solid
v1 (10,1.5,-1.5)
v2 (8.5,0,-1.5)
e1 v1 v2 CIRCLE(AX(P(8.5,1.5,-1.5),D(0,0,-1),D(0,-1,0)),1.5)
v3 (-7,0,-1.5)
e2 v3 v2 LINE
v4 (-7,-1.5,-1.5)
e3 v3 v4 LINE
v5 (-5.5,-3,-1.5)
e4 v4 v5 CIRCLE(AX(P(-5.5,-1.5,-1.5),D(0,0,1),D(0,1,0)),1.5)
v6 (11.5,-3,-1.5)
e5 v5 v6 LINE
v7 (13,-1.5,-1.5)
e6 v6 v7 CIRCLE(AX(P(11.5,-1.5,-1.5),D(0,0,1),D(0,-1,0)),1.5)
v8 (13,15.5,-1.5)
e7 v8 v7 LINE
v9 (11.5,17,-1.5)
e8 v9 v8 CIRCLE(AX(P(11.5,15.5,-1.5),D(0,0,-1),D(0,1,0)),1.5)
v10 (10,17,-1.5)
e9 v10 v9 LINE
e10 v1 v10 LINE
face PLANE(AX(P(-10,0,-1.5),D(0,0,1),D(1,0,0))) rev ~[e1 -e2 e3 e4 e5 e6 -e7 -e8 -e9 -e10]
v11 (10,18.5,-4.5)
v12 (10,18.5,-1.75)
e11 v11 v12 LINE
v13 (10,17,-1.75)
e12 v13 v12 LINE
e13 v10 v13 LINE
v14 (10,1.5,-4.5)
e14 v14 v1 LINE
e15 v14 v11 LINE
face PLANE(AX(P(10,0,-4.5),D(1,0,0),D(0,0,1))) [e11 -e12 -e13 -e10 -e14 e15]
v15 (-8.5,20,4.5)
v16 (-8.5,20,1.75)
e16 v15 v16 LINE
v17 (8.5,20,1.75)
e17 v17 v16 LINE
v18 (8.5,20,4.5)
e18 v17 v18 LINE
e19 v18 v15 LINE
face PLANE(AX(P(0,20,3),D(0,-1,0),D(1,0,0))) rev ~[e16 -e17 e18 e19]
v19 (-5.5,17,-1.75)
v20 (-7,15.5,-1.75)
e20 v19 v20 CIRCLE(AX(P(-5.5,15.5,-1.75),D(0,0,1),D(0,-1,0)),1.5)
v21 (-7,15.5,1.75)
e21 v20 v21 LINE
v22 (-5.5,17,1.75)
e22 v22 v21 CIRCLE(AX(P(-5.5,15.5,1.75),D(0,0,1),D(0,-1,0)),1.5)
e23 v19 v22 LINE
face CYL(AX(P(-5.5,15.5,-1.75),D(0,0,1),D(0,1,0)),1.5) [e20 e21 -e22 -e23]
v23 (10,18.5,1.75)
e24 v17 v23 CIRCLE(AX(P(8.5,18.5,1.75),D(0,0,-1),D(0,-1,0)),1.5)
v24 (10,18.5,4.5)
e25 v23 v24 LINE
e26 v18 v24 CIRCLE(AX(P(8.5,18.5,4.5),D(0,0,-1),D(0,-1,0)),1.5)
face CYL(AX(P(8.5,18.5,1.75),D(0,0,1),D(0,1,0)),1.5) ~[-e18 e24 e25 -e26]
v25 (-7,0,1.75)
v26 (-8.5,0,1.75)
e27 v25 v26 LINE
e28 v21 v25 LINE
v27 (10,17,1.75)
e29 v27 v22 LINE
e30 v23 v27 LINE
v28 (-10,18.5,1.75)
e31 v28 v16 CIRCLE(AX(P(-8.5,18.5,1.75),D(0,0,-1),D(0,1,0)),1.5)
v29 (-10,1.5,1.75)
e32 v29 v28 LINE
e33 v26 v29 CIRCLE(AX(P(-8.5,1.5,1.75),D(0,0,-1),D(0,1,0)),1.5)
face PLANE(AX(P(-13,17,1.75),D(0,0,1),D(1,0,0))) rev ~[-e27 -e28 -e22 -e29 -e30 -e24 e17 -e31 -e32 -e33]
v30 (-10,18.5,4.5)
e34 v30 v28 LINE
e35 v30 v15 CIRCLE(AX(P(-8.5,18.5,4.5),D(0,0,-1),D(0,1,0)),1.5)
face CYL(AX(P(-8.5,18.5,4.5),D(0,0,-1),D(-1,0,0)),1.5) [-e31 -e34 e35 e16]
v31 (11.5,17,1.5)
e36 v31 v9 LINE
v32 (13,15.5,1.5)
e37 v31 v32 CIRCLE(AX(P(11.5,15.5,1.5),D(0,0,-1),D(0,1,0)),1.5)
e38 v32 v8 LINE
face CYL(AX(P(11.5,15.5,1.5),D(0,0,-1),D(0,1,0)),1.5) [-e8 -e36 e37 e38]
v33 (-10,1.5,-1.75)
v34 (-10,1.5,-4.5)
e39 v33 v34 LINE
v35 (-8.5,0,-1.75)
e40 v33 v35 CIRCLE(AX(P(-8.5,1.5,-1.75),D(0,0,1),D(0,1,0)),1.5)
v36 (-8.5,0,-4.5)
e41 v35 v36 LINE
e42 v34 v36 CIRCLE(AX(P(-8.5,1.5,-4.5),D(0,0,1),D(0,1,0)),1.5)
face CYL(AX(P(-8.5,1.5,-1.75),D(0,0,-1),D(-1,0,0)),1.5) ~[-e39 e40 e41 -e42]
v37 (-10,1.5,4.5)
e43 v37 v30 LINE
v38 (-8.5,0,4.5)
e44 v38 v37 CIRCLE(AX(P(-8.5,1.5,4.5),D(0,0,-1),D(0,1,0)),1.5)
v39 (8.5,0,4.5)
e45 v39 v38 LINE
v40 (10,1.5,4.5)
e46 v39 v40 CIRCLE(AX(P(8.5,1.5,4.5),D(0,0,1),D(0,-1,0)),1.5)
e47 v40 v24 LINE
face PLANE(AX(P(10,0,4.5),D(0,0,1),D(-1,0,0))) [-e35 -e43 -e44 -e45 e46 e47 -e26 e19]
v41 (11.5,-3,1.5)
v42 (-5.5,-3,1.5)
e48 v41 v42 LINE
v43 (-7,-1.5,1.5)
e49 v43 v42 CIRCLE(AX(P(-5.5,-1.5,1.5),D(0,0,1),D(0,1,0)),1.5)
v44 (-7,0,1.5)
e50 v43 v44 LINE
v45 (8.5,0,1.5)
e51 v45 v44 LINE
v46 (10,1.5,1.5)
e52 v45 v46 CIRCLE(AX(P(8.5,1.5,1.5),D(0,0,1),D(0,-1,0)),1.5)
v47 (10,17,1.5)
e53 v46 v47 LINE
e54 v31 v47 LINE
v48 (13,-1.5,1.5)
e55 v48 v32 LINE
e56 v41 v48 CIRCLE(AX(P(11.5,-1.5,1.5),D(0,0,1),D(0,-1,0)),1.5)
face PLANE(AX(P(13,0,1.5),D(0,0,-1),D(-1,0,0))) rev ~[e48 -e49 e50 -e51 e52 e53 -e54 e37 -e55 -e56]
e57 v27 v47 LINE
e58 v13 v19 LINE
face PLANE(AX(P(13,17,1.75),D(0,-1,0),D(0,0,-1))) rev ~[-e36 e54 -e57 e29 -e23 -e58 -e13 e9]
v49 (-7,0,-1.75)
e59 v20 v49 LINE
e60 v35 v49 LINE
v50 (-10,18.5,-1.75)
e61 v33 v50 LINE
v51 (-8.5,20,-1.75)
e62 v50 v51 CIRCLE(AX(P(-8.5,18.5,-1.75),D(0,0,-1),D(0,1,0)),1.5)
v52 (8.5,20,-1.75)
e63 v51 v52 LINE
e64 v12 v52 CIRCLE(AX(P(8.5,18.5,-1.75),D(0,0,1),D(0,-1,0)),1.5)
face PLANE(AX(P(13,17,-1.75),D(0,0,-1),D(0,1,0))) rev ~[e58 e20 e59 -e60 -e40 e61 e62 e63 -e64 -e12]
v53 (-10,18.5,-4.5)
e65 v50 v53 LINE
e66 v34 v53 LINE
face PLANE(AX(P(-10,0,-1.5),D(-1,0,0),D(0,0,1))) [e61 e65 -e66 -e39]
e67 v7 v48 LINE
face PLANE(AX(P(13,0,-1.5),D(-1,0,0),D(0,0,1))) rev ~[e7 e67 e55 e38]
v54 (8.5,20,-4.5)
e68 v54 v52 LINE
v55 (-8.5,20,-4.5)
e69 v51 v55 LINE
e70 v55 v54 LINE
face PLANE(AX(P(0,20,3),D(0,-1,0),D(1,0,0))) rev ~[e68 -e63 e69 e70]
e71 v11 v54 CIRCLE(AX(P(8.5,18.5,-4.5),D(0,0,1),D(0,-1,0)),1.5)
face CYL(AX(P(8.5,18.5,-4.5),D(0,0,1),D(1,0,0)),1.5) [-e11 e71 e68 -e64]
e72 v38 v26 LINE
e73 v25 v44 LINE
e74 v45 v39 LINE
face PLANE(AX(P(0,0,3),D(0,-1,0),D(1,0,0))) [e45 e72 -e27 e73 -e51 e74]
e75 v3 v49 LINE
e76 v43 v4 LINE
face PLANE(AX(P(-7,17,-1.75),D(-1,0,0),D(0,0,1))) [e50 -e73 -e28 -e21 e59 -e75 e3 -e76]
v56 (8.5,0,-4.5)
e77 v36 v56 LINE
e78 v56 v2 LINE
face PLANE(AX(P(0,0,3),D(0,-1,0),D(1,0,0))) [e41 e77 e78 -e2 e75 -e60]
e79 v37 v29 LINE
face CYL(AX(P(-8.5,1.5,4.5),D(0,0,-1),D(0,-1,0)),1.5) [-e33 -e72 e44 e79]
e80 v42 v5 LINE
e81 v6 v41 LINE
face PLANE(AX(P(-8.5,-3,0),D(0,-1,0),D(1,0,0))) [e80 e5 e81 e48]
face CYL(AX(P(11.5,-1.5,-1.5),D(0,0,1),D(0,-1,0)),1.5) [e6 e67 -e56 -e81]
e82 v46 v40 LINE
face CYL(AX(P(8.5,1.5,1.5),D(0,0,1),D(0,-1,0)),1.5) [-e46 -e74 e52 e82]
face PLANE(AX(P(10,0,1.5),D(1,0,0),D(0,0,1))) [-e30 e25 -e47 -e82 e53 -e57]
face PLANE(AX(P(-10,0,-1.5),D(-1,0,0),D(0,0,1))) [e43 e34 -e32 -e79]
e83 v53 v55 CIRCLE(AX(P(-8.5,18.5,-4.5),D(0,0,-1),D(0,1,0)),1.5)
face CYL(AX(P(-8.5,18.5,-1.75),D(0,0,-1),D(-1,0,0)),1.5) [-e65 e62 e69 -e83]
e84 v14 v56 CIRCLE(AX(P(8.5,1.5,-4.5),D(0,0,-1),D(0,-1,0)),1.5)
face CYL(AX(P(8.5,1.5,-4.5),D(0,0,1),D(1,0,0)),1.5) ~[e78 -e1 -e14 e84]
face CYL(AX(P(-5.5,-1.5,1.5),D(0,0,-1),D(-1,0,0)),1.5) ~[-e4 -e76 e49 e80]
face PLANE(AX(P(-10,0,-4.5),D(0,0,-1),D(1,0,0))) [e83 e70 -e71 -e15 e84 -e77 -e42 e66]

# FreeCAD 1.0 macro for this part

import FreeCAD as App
import Part
import Sketcher
from FreeCAD import Vector


def edges_at(feature, points):
    """Names of the edges that pass closest to the given points."""
    edges = feature.Shape.Edges
    near = lambda p: min(range(len(edges)), key=lambda i: edges[i].distToShape(Part.Vertex(*p))[0])
    return sorted({f"Edge{near(p) + 1}" for p in points})


def add_polygon(sketch, points):
    """Adds a closed chain of lines whose ends are joined by coincident constraints."""
    first, n = sketch.GeometryCount, len(points)
    for a, b in zip(points, points[1:] + points[:1]):
        sketch.addGeometry(Part.LineSegment(App.Vector(*a, 0), App.Vector(*b, 0)), False)
    for i in range(n):
        sketch.addConstraint(Sketcher.Constraint("Coincident", first + i, 2, first + (i + 1) % n, 1))

doc = App.newDocument("Part")
body = doc.addObject("PartDesign::Body", "Body")

# Sketch on XZ plane
sketch1 = body.newObject("Sketcher::SketchObject", "Sketch")
sketch1.AttachmentSupport = (doc.getObject("XZ_Plane"), [""])
sketch1.MapMode = "FlatFace"
add_polygon(sketch1, [(10, 1.5), (10, 4.5), (-10, 4.5), (-10, -4.5), (10, -4.5), (10, -1.5), (13, -1.5), (13, 1.5)])  # lines 0-7
sketch1.addConstraint(Sketcher.Constraint("Vertical", 0))
sketch1.addConstraint(Sketcher.Constraint("Horizontal", 1))
sketch1.addConstraint(Sketcher.Constraint("Vertical", 2))
sketch1.addConstraint(Sketcher.Constraint("Horizontal", 3))
sketch1.addConstraint(Sketcher.Constraint("Vertical", 4))
sketch1.addConstraint(Sketcher.Constraint("Horizontal", 5))
sketch1.addConstraint(Sketcher.Constraint("Vertical", 6))
sketch1.addConstraint(Sketcher.Constraint("Horizontal", 7))
sketch1.addConstraint(Sketcher.Constraint("Symmetric", 0, 2, 2, 2, -1, 1))
sketch1.addConstraint(Sketcher.Constraint("Symmetric", 4, 2, 7, 2, -1))
sketch1.addConstraint(Sketcher.Constraint("Equal", 7, 0))
sketch1.addConstraint(Sketcher.Constraint("Equal", 4, 6))
sketch1.addConstraint(Sketcher.Constraint("DistanceX", 1, 2, 1, 1, 20.0))
sketch1.addConstraint(Sketcher.Constraint("DistanceX", 5, 1, 5, 2, 3.0))
pad1 = body.newObject("PartDesign::Pad", "Pad")
pad1.Profile = sketch1
pad1.Length = 20
pad1.Reversed = True

# Sketch on XZ plane
sketch2 = body.newObject("Sketcher::SketchObject", "Sketch001")
sketch2.AttachmentSupport = (doc.getObject("XZ_Plane"), [""])
sketch2.MapMode = "FlatFace"
add_polygon(sketch2, [(-10, 1.5), (-10, -1.5), (13, -1.5), (13, 1.5)])  # lines 0-3
sketch2.addConstraint(Sketcher.Constraint("Vertical", 0))
sketch2.addConstraint(Sketcher.Constraint("Horizontal", 1))
sketch2.addConstraint(Sketcher.Constraint("Vertical", 2))
sketch2.addConstraint(Sketcher.Constraint("Horizontal", 3))
sketch2.addConstraint(Sketcher.Constraint("DistanceX", 1, 1, 1, 2, 23.0))
sketch2.addConstraint(Sketcher.Constraint("DistanceY", 0, 2, 0, 1, 3.0))
sketch2.addConstraint(Sketcher.Constraint("DistanceX", 0, 2, -1, 1, 10.0))
sketch2.addConstraint(Sketcher.Constraint("DistanceY", 0, 2, -1, 1, 1.5))
pad2 = body.newObject("PartDesign::Pad", "Pad001")
pad2.Profile = sketch2
pad2.Length = 3

# Sketch on YZ plane
sketch3 = body.newObject("Sketcher::SketchObject", "Sketch002")
sketch3.AttachmentSupport = (doc.getObject("YZ_Plane"), [""])
sketch3.MapMode = "FlatFace"
sketch3.AttachmentOffset = App.Placement(Vector(0, 0, 13), App.Rotation())
add_polygon(sketch3, [(23, -1.8), (23, 1.8), (17, 1.8), (17, -1.8)])  # lines 0-3
sketch3.addConstraint(Sketcher.Constraint("Vertical", 0))
sketch3.addConstraint(Sketcher.Constraint("Horizontal", 1))
sketch3.addConstraint(Sketcher.Constraint("Vertical", 2))
sketch3.addConstraint(Sketcher.Constraint("Horizontal", 3))
sketch3.addConstraint(Sketcher.Constraint("DistanceX", 1, 2, 1, 1, 6.0))
sketch3.addConstraint(Sketcher.Constraint("DistanceY", 0, 1, 0, 2, 3.5))
sketch3.addConstraint(Sketcher.Constraint("DistanceX", -1, 1, 0, 2, 23.0))
sketch3.addConstraint(Sketcher.Constraint("DistanceY", -1, 1, 0, 2, 1.75))
pocket1 = body.newObject("PartDesign::Pocket", "Pocket")
pocket1.Profile = sketch3
pocket1.Length = 100

# Sketch on XZ plane
sketch4 = body.newObject("Sketcher::SketchObject", "Sketch003")
sketch4.AttachmentSupport = (doc.getObject("XZ_Plane"), [""])
sketch4.MapMode = "FlatFace"
sketch4.AttachmentOffset = App.Placement(Vector(0, 0, -17), App.Rotation())
add_polygon(sketch4, [(-13, -1.8), (-13, 1.8), (-7, 1.8), (-7, -1.8)])  # lines 0-3
sketch4.addConstraint(Sketcher.Constraint("Vertical", 0))
sketch4.addConstraint(Sketcher.Constraint("Horizontal", 1))
sketch4.addConstraint(Sketcher.Constraint("Vertical", 2))
sketch4.addConstraint(Sketcher.Constraint("Horizontal", 3))
sketch4.addConstraint(Sketcher.Constraint("DistanceX", 1, 1, 1, 2, 6.0))
sketch4.addConstraint(Sketcher.Constraint("DistanceY", 0, 1, 0, 2, 3.5))
sketch4.addConstraint(Sketcher.Constraint("DistanceX", 0, 2, -1, 1, 13.0))
sketch4.addConstraint(Sketcher.Constraint("DistanceY", -1, 1, 0, 2, 1.75))
pocket2 = body.newObject("PartDesign::Pocket", "Pocket001")
pocket2.Profile = sketch4
pocket2.Length = 100
pocket2.Reversed = True
doc.recompute()

fillet = body.newObject("PartDesign::Fillet", "Fillet")
fillet.Base = (pocket2, edges_at(pocket2, [
    (-7, -3, 0),
    (13, -3, 0),
    (10, 0, 3),
    (10, 0, -3),
    (-10, 0, -3.125),
    (-10, 0, 3.125),
    (-7, 17, 0),
    (-10, 20, 3.125),
    (-10, 20, -3.125),
    (13, 17, 0),
    (10, 20, 3.125),
    (10, 20, -3.125),
]))
fillet.Radius = 1.5

doc.recompute()
